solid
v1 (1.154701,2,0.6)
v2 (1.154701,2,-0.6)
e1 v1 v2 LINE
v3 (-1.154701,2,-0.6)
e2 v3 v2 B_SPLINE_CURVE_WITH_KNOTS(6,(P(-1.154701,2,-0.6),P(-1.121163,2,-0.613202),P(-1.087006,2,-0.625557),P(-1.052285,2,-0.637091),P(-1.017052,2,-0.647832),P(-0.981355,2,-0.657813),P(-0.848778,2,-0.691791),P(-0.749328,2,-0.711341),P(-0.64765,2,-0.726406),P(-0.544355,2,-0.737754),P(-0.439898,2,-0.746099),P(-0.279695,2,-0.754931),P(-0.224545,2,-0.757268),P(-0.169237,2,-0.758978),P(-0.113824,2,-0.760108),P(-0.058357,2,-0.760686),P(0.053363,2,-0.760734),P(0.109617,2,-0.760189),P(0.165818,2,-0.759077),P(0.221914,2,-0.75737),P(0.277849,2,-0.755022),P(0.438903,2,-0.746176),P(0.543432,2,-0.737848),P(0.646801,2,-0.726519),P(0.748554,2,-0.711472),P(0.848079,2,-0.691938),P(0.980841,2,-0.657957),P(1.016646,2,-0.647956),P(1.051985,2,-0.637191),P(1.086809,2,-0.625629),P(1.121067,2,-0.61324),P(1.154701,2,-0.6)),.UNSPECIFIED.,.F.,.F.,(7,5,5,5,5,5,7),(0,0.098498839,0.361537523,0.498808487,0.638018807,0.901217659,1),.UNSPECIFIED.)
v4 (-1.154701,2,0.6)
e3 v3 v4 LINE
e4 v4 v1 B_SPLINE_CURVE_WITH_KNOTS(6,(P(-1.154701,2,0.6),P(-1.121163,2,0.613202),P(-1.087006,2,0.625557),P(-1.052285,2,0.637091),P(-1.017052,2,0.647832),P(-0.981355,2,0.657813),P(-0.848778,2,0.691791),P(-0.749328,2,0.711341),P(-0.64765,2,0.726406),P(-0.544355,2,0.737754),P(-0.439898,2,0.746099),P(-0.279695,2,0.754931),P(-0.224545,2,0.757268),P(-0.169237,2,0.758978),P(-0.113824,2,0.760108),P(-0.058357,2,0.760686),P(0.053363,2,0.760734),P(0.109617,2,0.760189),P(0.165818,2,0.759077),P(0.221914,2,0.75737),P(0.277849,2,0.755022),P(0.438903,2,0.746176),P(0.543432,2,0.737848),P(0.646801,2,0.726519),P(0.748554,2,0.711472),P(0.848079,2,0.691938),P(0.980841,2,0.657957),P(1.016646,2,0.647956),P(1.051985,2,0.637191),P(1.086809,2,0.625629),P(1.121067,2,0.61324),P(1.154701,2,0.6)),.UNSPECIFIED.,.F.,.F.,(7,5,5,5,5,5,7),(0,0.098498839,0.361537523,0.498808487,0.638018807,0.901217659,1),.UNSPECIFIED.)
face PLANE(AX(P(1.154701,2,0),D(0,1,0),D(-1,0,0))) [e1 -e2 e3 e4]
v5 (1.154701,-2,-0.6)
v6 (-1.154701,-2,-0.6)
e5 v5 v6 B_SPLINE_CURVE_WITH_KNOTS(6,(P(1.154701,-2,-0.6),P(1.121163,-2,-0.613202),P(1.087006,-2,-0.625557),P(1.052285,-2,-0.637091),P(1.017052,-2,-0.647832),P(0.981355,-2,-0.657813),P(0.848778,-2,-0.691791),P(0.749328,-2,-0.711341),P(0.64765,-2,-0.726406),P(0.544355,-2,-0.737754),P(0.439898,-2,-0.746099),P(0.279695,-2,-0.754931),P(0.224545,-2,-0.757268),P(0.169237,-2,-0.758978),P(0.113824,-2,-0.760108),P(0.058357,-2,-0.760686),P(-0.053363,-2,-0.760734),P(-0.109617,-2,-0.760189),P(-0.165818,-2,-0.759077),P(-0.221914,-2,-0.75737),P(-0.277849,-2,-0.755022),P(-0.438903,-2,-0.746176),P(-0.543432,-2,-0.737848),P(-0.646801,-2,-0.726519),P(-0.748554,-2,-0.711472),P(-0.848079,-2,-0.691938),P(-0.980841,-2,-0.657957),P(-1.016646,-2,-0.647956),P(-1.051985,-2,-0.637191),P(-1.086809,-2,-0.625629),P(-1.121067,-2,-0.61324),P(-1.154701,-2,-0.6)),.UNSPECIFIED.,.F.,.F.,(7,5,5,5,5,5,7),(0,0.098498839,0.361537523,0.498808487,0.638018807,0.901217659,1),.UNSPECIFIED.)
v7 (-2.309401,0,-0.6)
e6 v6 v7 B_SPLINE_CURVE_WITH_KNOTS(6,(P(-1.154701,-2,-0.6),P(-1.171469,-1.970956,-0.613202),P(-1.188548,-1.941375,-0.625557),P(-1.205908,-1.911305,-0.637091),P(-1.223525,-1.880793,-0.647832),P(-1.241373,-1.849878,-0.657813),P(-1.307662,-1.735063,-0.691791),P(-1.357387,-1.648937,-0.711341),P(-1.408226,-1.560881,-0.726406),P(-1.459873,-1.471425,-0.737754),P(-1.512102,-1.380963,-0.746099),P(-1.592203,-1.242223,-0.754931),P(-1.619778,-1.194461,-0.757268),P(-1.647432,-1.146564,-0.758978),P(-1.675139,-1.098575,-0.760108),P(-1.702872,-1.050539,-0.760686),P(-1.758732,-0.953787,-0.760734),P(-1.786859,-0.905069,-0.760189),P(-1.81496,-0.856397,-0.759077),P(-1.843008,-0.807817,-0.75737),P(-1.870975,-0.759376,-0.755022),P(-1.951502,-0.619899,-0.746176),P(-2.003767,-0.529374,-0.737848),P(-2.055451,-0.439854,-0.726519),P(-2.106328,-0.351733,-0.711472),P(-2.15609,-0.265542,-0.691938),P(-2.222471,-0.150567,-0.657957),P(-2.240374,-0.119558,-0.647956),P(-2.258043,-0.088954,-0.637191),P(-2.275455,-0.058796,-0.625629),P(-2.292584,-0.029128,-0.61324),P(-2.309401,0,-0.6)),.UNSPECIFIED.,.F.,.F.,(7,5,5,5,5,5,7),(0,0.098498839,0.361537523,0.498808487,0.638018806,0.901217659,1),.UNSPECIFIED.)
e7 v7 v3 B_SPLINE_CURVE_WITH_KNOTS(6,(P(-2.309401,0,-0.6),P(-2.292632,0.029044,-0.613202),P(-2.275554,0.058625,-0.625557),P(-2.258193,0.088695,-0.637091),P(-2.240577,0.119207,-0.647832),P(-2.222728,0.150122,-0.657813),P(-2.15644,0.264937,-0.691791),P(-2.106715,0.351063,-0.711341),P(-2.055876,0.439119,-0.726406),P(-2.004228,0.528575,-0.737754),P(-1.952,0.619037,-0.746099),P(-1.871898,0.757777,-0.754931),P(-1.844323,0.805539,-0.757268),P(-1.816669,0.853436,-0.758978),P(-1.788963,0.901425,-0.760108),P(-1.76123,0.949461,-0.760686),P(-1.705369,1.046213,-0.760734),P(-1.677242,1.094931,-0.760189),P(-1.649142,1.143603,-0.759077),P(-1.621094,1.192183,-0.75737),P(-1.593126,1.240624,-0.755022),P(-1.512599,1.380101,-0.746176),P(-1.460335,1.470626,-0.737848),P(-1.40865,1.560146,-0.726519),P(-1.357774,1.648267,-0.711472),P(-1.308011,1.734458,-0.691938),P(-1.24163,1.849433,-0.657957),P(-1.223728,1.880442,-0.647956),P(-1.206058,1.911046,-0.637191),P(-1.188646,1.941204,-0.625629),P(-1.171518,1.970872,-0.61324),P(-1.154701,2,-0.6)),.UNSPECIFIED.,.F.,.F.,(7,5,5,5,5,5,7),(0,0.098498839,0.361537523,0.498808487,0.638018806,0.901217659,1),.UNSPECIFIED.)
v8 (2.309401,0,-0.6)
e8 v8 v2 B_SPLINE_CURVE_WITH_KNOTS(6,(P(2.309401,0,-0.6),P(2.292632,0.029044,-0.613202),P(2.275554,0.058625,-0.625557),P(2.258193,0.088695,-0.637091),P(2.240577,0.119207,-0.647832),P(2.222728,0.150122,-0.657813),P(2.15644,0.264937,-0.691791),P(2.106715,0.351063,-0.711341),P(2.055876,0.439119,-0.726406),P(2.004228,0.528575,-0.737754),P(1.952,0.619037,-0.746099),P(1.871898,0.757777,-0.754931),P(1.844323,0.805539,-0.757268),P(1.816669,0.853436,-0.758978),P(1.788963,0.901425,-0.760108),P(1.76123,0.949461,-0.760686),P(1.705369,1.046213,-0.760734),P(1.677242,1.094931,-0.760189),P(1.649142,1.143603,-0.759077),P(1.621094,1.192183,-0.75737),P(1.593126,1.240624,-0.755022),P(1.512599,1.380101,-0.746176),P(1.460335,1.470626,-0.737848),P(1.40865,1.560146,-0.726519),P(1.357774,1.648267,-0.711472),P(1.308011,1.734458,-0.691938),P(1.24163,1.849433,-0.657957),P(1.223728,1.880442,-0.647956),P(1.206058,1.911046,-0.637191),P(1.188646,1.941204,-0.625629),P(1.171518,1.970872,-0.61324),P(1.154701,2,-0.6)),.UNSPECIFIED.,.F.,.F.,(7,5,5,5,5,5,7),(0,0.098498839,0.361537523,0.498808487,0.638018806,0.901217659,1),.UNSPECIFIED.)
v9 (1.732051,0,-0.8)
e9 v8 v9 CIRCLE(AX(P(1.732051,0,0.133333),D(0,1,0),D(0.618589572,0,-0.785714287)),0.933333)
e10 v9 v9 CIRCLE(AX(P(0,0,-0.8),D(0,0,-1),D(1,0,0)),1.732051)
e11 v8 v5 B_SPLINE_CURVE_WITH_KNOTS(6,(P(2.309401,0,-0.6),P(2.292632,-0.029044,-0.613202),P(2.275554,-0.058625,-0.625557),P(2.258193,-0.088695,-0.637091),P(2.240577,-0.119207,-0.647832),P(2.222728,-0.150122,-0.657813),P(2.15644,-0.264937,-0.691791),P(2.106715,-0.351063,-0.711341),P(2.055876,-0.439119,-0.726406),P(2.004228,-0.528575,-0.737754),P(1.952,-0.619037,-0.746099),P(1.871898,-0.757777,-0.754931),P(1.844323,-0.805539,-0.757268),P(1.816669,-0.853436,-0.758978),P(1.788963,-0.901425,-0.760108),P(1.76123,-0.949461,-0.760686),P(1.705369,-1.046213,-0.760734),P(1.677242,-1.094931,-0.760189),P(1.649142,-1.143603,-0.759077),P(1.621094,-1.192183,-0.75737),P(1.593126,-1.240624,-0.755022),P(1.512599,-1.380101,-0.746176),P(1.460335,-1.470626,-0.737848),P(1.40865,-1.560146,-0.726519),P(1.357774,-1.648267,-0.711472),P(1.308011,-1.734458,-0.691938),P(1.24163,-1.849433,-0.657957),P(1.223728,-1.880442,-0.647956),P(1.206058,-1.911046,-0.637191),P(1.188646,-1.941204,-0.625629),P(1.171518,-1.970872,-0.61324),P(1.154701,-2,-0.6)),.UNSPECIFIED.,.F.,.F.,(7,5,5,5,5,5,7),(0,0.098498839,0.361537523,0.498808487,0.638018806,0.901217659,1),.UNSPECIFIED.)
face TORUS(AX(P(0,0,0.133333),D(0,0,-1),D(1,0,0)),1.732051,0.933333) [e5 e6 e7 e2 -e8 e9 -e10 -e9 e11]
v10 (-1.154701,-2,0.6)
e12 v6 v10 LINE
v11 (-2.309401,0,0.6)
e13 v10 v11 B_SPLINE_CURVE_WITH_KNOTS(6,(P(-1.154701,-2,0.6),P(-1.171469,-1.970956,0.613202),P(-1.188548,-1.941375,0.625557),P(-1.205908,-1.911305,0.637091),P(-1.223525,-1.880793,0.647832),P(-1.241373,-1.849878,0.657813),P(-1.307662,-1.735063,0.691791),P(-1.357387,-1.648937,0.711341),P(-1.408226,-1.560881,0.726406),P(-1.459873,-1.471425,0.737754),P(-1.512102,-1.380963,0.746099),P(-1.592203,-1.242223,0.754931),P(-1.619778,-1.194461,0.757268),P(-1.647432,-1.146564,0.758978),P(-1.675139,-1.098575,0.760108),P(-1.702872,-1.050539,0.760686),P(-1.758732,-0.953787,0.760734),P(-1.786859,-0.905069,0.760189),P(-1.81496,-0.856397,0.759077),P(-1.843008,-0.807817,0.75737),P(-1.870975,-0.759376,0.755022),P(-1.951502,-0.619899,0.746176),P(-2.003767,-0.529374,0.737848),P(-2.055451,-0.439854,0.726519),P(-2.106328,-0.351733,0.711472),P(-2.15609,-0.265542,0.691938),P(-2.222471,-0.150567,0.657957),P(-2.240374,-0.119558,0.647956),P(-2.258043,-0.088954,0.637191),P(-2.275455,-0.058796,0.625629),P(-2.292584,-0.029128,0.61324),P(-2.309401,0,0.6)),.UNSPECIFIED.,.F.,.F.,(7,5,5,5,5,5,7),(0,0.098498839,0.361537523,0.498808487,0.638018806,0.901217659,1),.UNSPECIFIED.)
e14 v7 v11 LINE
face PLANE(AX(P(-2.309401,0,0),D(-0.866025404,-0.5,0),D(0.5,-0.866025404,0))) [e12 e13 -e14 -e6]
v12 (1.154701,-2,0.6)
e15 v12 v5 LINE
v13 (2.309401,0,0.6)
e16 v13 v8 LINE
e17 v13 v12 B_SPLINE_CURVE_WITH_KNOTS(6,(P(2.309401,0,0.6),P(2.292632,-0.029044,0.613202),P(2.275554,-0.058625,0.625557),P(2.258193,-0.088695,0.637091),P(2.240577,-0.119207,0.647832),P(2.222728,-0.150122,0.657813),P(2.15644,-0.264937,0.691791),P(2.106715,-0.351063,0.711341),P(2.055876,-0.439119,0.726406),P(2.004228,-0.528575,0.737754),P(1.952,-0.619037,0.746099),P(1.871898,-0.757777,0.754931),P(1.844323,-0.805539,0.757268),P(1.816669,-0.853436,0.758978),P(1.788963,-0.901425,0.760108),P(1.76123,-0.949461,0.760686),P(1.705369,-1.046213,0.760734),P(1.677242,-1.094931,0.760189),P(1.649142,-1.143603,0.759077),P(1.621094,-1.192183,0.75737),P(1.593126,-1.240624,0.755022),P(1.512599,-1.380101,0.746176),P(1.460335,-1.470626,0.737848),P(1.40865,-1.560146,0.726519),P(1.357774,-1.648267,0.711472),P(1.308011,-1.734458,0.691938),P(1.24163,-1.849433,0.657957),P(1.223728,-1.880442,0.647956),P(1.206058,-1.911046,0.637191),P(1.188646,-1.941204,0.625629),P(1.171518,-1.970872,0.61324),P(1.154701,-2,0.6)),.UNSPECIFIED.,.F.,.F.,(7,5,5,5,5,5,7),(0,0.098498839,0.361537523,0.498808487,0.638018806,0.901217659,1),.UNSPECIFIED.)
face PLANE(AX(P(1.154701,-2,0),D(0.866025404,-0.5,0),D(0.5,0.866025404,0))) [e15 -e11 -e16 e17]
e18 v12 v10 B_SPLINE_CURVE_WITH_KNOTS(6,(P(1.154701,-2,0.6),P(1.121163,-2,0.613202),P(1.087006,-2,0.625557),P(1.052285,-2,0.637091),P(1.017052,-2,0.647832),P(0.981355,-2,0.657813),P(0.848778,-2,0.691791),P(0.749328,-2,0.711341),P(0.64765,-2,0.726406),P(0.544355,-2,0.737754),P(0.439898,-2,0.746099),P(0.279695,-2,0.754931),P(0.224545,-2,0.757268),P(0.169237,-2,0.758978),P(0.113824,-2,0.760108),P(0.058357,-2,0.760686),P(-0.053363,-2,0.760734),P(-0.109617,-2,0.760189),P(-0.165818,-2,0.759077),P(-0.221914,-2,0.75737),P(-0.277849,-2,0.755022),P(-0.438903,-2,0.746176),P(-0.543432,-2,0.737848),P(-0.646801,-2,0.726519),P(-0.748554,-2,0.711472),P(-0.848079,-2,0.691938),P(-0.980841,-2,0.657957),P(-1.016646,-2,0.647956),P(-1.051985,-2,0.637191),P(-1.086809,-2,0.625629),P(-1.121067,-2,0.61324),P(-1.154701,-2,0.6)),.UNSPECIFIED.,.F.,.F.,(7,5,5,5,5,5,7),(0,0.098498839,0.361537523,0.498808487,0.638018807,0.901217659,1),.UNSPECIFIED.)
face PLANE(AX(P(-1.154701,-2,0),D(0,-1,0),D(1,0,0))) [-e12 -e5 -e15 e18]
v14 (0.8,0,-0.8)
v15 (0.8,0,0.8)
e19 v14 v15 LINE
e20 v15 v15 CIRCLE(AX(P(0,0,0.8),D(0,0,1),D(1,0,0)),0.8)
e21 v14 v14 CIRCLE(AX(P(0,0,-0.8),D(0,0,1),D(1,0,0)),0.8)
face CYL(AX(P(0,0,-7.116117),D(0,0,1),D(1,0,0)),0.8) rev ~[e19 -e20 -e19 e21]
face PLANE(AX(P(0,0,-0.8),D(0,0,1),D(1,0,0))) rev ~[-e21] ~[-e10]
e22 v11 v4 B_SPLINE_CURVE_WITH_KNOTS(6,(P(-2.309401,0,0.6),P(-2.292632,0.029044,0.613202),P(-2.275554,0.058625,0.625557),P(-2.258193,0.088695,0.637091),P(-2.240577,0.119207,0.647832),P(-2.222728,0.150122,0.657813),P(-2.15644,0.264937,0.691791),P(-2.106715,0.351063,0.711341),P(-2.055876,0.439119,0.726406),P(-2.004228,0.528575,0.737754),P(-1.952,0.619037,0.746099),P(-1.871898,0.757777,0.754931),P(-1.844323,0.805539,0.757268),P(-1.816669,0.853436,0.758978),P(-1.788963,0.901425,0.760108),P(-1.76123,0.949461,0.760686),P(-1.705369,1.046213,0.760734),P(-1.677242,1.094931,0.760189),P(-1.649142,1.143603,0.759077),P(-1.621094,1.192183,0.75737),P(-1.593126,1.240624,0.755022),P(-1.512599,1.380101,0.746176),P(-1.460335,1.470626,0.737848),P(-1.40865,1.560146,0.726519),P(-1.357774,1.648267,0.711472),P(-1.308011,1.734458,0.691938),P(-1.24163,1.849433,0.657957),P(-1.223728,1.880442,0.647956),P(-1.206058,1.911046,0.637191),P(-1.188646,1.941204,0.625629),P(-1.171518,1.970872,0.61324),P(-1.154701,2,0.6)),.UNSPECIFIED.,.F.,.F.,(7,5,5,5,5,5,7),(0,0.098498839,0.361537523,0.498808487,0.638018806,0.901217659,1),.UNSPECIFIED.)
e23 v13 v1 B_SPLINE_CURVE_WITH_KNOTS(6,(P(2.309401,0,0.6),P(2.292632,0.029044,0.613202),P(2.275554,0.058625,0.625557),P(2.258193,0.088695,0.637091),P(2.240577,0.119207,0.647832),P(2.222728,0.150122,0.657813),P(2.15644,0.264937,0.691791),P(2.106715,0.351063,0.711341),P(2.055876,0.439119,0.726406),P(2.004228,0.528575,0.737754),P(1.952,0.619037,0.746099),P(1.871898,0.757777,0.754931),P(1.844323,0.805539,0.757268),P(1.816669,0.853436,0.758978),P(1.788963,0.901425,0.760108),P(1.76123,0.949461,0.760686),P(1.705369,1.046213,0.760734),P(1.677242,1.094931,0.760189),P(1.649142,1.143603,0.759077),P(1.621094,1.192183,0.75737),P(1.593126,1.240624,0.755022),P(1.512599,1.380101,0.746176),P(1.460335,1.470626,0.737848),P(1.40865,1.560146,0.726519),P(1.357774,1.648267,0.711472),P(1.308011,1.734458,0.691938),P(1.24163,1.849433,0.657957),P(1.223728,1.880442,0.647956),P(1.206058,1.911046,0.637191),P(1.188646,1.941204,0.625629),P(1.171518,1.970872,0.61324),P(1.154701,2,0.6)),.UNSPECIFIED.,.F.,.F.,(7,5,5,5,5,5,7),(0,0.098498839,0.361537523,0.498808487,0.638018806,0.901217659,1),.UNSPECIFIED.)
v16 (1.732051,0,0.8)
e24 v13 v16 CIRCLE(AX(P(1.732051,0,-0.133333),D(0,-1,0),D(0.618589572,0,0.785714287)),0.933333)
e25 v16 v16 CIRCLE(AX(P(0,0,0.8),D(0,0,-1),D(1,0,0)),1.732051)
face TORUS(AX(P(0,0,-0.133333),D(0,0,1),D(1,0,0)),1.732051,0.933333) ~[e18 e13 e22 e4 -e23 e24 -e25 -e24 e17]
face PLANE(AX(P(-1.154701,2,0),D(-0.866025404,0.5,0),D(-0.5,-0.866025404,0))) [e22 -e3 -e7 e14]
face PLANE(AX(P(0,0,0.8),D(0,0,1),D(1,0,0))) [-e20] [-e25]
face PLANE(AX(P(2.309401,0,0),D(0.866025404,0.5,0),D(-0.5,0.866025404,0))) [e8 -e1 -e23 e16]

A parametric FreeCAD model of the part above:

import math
import FreeCAD as App
import Part
import Sketcher
Q = App.Units.Quantity

doc = App.newDocument("Part")
body = doc.addObject("PartDesign::Body", "Body")

# Sketch on XY plane
sketch1 = body.newObject("Sketcher::SketchObject", "Sketch")
sketch1.AttachmentSupport = (doc.getObject("XY_Plane"), [""])
sketch1.MapMode = "FlatFace"
sketch1.addGeometry(Part.LineSegment(App.Vector(1.2, 2, 0), App.Vector(-1.2, 2, 0)), False)
sketch1.addGeometry(Part.LineSegment(App.Vector(-1.2, 2, 0), App.Vector(-2.3, 0, 0)), False)
sketch1.addGeometry(Part.LineSegment(App.Vector(-2.3, 0, 0), App.Vector(-1.2, -2, 0)), False)
sketch1.addGeometry(Part.LineSegment(App.Vector(-1.2, -2, 0), App.Vector(1.2, -2, 0)), False)
sketch1.addGeometry(Part.LineSegment(App.Vector(1.2, -2, 0), App.Vector(2.3, 0, 0)), False)
sketch1.addGeometry(Part.LineSegment(App.Vector(2.3, 0, 0), App.Vector(1.2, 2, 0)), False)
sketch1.addConstraint(Sketcher.Constraint("Coincident", 0, 2, 1, 1))
sketch1.addConstraint(Sketcher.Constraint("Coincident", 1, 2, 2, 1))
sketch1.addConstraint(Sketcher.Constraint("Coincident", 2, 2, 3, 1))
sketch1.addConstraint(Sketcher.Constraint("Coincident", 3, 2, 4, 1))
sketch1.addConstraint(Sketcher.Constraint("Coincident", 4, 2, 5, 1))
sketch1.addConstraint(Sketcher.Constraint("Coincident", 5, 2, 0, 1))
sketch1.addConstraint(Sketcher.Constraint("Horizontal", 0))
sketch1.addConstraint(Sketcher.Constraint("Horizontal", 3))
sketch1.addConstraint(Sketcher.Constraint("Symmetric", 0, 2, 3, 2, -1, 1))
sketch1.addConstraint(Sketcher.Constraint("Symmetric", 1, 2, 4, 2, -1, 1))
sketch1.addConstraint(Sketcher.Constraint("PointOnObject", 1, 2, -1))
sketch1.addConstraint(Sketcher.Constraint("Parallel", 2, 5))
sketch1.addConstraint(Sketcher.Constraint("Vertical", 0, 2, 2, 2))
sketch1.addConstraint(Sketcher.Constraint("Angle", 1, Q("-120 deg")))
sketch1.addConstraint(Sketcher.Constraint("DistanceY", -1, 1, 0, 2, Q("2 mm")))
sketch1.addConstraint(Sketcher.Constraint("DistanceX", 0, 2, 0, 1, Q("2.309401 mm")))
pad1 = body.newObject("PartDesign::Pad", "Pad")
pad1.Profile = sketch1
pad1.Length = 1.6
pad1.Midplane = True

# Sketch on XZ plane
sketch2 = body.newObject("Sketcher::SketchObject", "Sketch001")
sketch2.AttachmentSupport = (doc.getObject("XZ_Plane"), [""])
sketch2.MapMode = "FlatFace"
sketch2.addGeometry(Part.LineSegment(App.Vector(2.31, -0.8, 0), App.Vector(1.73, -0.8, 0)), False)
sketch2.addGeometry(Part.ArcOfCircle(Part.Circle(App.Vector(1.73, 0.13, 0), App.Vector(0, 0, 1), 0.93), math.radians(-90), math.radians(-52)), False)
sketch2.addGeometry(Part.LineSegment(App.Vector(2.31, -0.6, 0), App.Vector(2.31, -0.8, 0)), False)
sketch2.addGeometry(Part.LineSegment(App.Vector(2.31, 0.8, 0), App.Vector(2.31, 0.6, 0)), False)
sketch2.addGeometry(Part.ArcOfCircle(Part.Circle(App.Vector(1.73, -0.13, 0), App.Vector(0, 0, 1), 0.93), math.radians(52), math.radians(90)), False)
sketch2.addGeometry(Part.LineSegment(App.Vector(1.73, 0.8, 0), App.Vector(2.31, 0.8, 0)), False)
sketch2.addConstraint(Sketcher.Constraint("Tangent", 0, 2, 1, 1))
sketch2.addConstraint(Sketcher.Constraint("Coincident", 1, 2, 2, 1))
sketch2.addConstraint(Sketcher.Constraint("Coincident", 2, 2, 0, 1))
sketch2.addConstraint(Sketcher.Constraint("Coincident", 3, 2, 4, 1))
sketch2.addConstraint(Sketcher.Constraint("Tangent", 4, 2, 5, 1))
sketch2.addConstraint(Sketcher.Constraint("Coincident", 5, 2, 3, 1))
sketch2.addConstraint(Sketcher.Constraint("Horizontal", 0))
sketch2.addConstraint(Sketcher.Constraint("Vertical", 2))
sketch2.addConstraint(Sketcher.Constraint("Vertical", 3))
sketch2.addConstraint(Sketcher.Constraint("Horizontal", 5))
sketch2.addConstraint(Sketcher.Constraint("Equal", 1, 4))
sketch2.addConstraint(Sketcher.Constraint("Symmetric", 1, 3, 4, 3, -1))
sketch2.addConstraint(Sketcher.Constraint("Vertical", 2, 2, 3, 2))
sketch2.addConstraint(Sketcher.Constraint("DistanceY", 2, 2, 2, 1, Q("0.2 mm")))
sketch2.addConstraint(Sketcher.Constraint("DistanceY", 0, 2, -1, 1, Q("0.8 mm")))
sketch2.addConstraint(Sketcher.Constraint("Radius", 1, Q("0.933333 mm")))
sketch2.addConstraint(Sketcher.Constraint("DistanceX", -1, 1, 1, 2, Q("2.309401 mm")))
groove = body.newObject("PartDesign::Groove", "Groove")
groove.Profile = sketch2
groove.ReferenceAxis = (sketch2, ["V_Axis"])
groove.Angle = 360

# Sketch on XY plane
sketch3 = body.newObject("Sketcher::SketchObject", "Sketch002")
sketch3.AttachmentSupport = (doc.getObject("XY_Plane"), [""])
sketch3.MapMode = "FlatFace"
sketch3.AttachmentOffset = App.Placement(App.Vector(0, 0, -0.8), App.Rotation())
sketch3.addGeometry(Part.Circle(App.Vector(0, 0, 0), App.Vector(0, 0, 1), 0.8), False)
sketch3.addConstraint(Sketcher.Constraint("Coincident", 0, 3, -1, 1))
sketch3.addConstraint(Sketcher.Constraint("Diameter", 0, Q("1.6 mm")))
doc.recompute()
hole = body.newObject("PartDesign::Hole", "Hole")
hole.Profile = sketch3
hole.ThreadType = "None"
hole.Diameter = 1.6
hole.DepthType = "ThroughAll"
hole.Reversed = True

doc.recompute()
